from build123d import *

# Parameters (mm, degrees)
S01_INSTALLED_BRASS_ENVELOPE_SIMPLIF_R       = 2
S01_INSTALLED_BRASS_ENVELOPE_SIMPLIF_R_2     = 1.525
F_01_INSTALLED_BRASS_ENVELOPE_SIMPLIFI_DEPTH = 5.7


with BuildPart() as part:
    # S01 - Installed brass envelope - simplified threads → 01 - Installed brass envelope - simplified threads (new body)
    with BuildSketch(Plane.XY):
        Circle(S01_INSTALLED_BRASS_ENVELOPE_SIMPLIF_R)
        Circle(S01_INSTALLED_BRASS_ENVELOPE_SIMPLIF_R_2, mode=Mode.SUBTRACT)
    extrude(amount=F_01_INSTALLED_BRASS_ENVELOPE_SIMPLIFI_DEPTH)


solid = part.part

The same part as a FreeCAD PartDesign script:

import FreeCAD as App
import Part
import Sketcher

doc = App.newDocument("Part")
params = doc.addObject("Spreadsheet::Sheet", "Params")
for row, (alias, value) in enumerate([
    ("sketch1_diameter", "4 mm"),
    ("sketch1_diameter2", "3.05 mm"),
    ("pad1_length", "5.7 mm"),
], start=1):
    params.set(f"A{row}", alias)
    params.set(f"B{row}", "=" + value)
    params.setAlias(f"B{row}", alias)

body = doc.addObject("PartDesign::Body", "Body")

sketch1 = body.newObject("Sketcher::SketchObject", "Sketch")
sketch1.AttachmentSupport = (doc.getObject("XY_Plane"), [""])
sketch1.MapMode = "FlatFace"
sketch1.addGeometry([
    Part.Circle(App.Vector(0, 0, 0), App.Vector(0, 0, 1), 2),
    Part.Circle(App.Vector(0, 0, 0), App.Vector(0, 0, 1), 1.5),
], False)
sketch1.addConstraint([
    Sketcher.Constraint("Coincident", 0, 3, -1, 1),
    Sketcher.Constraint("Coincident", 1, 3, -1, 1),
    Sketcher.Constraint("Diameter", 0, 4.0),
    Sketcher.Constraint("Diameter", 1, 3.05),
])
sketch1.setExpression("Constraints[2]", "Params.sketch1_diameter")
sketch1.setExpression("Constraints[3]", "Params.sketch1_diameter2")
pad1 = body.newObject("PartDesign::Pad", "Pad")
pad1.Profile = sketch1
pad1.setExpression("Length", "Params.pad1_length")

doc.recompute()
